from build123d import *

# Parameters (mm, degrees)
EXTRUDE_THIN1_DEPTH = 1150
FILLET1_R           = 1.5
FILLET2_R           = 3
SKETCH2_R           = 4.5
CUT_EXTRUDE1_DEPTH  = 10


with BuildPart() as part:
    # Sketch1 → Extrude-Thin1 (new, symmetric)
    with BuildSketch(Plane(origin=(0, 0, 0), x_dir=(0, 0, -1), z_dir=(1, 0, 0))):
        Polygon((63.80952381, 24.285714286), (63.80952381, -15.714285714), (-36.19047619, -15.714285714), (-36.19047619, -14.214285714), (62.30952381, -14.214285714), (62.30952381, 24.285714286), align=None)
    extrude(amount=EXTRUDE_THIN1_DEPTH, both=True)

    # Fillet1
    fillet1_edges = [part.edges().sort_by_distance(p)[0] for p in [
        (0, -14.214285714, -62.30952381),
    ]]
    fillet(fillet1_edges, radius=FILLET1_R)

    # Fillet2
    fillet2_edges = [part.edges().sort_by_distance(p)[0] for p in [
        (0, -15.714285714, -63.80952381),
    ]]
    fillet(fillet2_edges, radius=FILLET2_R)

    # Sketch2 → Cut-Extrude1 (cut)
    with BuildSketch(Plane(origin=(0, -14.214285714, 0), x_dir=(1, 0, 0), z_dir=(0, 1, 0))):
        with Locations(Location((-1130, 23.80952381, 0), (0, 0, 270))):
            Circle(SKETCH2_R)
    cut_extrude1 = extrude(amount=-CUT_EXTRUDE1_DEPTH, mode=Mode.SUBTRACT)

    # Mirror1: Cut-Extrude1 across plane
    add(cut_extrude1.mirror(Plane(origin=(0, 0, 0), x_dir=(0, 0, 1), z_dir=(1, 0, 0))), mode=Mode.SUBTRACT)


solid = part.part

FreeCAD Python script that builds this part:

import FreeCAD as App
import Part
import Sketcher


def edges_at(feature, points):
    """Names of the edges that pass closest to the given points."""
    edges = feature.Shape.Edges
    near = lambda p: min(range(len(edges)), key=lambda i: edges[i].distToShape(Part.Vertex(*p))[0])
    return sorted({f"Edge{near(p) + 1}" for p in points})

doc = App.newDocument("Part")
params = doc.addObject("Spreadsheet::Sheet", "Params")
for row, (alias, value) in enumerate([
    ("sketch1_width", "40 mm"),
    ("sketch1_height", "100 mm"),
    ("sketch1_width2", "38.5 mm"),
    ("pad1_length", "2300 mm"),
    ("fillet_radius", "1.5 mm"),
    ("fillet2_radius", "3 mm"),
    ("sketch2_diameter", "9 mm"),
    ("pocket1_length", "10 mm"),
], start=1):
    params.set(f"A{row}", alias)
    params.set(f"B{row}", "=" + value)
    params.setAlias(f"B{row}", alias)

body = doc.addObject("PartDesign::Body", "Body")

sketch1 = body.newObject("Sketcher::SketchObject", "Sketch")
sketch1.AttachmentSupport = (doc.getObject("YZ_Plane"), [""])
sketch1.MapMode = "FlatFace"
sketch1.addGeometry(Part.LineSegment(App.Vector(-15.714286, -63.809524, 0), App.Vector(24.285714, -63.809524, 0)), False)
sketch1.addGeometry(Part.LineSegment(App.Vector(24.285714, -63.809524, 0), App.Vector(24.285714, -62.309524, 0)), False)
sketch1.addGeometry(Part.LineSegment(App.Vector(24.285714, -62.309524, 0), App.Vector(-14.214286, -62.309524, 0)), False)
sketch1.addGeometry(Part.LineSegment(App.Vector(-14.214286, -62.309524, 0), App.Vector(-14.214286, 36.190476, 0)), False)
sketch1.addGeometry(Part.LineSegment(App.Vector(-14.214286, 36.190476, 0), App.Vector(-15.714286, 36.190476, 0)), False)
sketch1.addGeometry(Part.LineSegment(App.Vector(-15.714286, 36.190476, 0), App.Vector(-15.714286, -63.809524, 0)), False)
sketch1.addConstraint(Sketcher.Constraint("Coincident", 0, 2, 1, 1))
sketch1.addConstraint(Sketcher.Constraint("Coincident", 1, 2, 2, 1))
sketch1.addConstraint(Sketcher.Constraint("Coincident", 2, 2, 3, 1))
sketch1.addConstraint(Sketcher.Constraint("Coincident", 3, 2, 4, 1))
sketch1.addConstraint(Sketcher.Constraint("Coincident", 4, 2, 5, 1))
sketch1.addConstraint(Sketcher.Constraint("Coincident", 5, 2, 0, 1))
sketch1.addConstraint(Sketcher.Constraint("Horizontal", 0))
sketch1.addConstraint(Sketcher.Constraint("Vertical", 1))
sketch1.addConstraint(Sketcher.Constraint("Horizontal", 2))
sketch1.addConstraint(Sketcher.Constraint("Vertical", 3))
sketch1.addConstraint(Sketcher.Constraint("Horizontal", 4))
sketch1.addConstraint(Sketcher.Constraint("Vertical", 5))
sketch1.addConstraint(Sketcher.Constraint("Equal", 4, 1))
sketch1.addConstraint(Sketcher.Constraint("DistanceX", 0, 1, 0, 2, 40.0))
sketch1.addConstraint(Sketcher.Constraint("DistanceY", 5, 2, 5, 1, 100.0))
sketch1.addConstraint(Sketcher.Constraint("DistanceX", 2, 2, 2, 1, 38.5))
sketch1.addConstraint(Sketcher.Constraint("DistanceX", -1, 1, 0, 2, 24.285714))
sketch1.addConstraint(Sketcher.Constraint("DistanceY", 0, 2, -1, 1, 63.809524))
sketch1.setExpression("Constraints[13]", "Params.sketch1_width")
sketch1.setExpression("Constraints[14]", "Params.sketch1_height")
sketch1.setExpression("Constraints[15]", "Params.sketch1_width2")
pad1 = body.newObject("PartDesign::Pad", "Pad")
pad1.Profile = sketch1
pad1.setExpression("Length", "Params.pad1_length")
pad1.Midplane = True
doc.recompute()

fillet = body.newObject("PartDesign::Fillet", "Fillet")
fillet.Base = (pad1, edges_at(pad1, [(0, -14.214, -62.31)]))
fillet.setExpression("Radius", "Params.fillet_radius")
doc.recompute()

fillet2 = body.newObject("PartDesign::Fillet", "Fillet001")
fillet2.Base = (fillet, edges_at(fillet, [(0, -15.714, -63.81)]))
fillet2.setExpression("Radius", "Params.fillet2_radius")

sketch2 = body.newObject("Sketcher::SketchObject", "Sketch001")
sketch2.AttachmentSupport = (doc.getObject("XZ_Plane"), [""])
sketch2.MapMode = "FlatFace"
sketch2.AttachmentOffset = App.Placement(App.Vector(0, 0, 14.214286), App.Rotation())
sketch2.addGeometry(Part.Circle(App.Vector(-1130, -23.809524, 0), App.Vector(0, 0, 1), 4.5), False)
sketch2.addConstraint(Sketcher.Constraint("Diameter", 0, 9.0))
sketch2.addConstraint(Sketcher.Constraint("DistanceX", 0, 3, -1, 1, 1130.0))
sketch2.addConstraint(Sketcher.Constraint("DistanceY", 0, 3, -1, 1, 23.809524))
sketch2.setExpression("Constraints[0]", "Params.sketch2_diameter")
pocket1 = body.newObject("PartDesign::Pocket", "Pocket")
pocket1.Profile = sketch2
pocket1.setExpression("Length", "Params.pocket1_length")
pocket1.Reversed = True
doc.recompute()

mirrored = body.newObject("PartDesign::Mirrored", "Mirrored")
mirrored.Originals = [pocket1]
mirrored.MirrorPlane = (doc.getObject("YZ_Plane"), [""])
body.Tip = mirrored

doc.recompute()
